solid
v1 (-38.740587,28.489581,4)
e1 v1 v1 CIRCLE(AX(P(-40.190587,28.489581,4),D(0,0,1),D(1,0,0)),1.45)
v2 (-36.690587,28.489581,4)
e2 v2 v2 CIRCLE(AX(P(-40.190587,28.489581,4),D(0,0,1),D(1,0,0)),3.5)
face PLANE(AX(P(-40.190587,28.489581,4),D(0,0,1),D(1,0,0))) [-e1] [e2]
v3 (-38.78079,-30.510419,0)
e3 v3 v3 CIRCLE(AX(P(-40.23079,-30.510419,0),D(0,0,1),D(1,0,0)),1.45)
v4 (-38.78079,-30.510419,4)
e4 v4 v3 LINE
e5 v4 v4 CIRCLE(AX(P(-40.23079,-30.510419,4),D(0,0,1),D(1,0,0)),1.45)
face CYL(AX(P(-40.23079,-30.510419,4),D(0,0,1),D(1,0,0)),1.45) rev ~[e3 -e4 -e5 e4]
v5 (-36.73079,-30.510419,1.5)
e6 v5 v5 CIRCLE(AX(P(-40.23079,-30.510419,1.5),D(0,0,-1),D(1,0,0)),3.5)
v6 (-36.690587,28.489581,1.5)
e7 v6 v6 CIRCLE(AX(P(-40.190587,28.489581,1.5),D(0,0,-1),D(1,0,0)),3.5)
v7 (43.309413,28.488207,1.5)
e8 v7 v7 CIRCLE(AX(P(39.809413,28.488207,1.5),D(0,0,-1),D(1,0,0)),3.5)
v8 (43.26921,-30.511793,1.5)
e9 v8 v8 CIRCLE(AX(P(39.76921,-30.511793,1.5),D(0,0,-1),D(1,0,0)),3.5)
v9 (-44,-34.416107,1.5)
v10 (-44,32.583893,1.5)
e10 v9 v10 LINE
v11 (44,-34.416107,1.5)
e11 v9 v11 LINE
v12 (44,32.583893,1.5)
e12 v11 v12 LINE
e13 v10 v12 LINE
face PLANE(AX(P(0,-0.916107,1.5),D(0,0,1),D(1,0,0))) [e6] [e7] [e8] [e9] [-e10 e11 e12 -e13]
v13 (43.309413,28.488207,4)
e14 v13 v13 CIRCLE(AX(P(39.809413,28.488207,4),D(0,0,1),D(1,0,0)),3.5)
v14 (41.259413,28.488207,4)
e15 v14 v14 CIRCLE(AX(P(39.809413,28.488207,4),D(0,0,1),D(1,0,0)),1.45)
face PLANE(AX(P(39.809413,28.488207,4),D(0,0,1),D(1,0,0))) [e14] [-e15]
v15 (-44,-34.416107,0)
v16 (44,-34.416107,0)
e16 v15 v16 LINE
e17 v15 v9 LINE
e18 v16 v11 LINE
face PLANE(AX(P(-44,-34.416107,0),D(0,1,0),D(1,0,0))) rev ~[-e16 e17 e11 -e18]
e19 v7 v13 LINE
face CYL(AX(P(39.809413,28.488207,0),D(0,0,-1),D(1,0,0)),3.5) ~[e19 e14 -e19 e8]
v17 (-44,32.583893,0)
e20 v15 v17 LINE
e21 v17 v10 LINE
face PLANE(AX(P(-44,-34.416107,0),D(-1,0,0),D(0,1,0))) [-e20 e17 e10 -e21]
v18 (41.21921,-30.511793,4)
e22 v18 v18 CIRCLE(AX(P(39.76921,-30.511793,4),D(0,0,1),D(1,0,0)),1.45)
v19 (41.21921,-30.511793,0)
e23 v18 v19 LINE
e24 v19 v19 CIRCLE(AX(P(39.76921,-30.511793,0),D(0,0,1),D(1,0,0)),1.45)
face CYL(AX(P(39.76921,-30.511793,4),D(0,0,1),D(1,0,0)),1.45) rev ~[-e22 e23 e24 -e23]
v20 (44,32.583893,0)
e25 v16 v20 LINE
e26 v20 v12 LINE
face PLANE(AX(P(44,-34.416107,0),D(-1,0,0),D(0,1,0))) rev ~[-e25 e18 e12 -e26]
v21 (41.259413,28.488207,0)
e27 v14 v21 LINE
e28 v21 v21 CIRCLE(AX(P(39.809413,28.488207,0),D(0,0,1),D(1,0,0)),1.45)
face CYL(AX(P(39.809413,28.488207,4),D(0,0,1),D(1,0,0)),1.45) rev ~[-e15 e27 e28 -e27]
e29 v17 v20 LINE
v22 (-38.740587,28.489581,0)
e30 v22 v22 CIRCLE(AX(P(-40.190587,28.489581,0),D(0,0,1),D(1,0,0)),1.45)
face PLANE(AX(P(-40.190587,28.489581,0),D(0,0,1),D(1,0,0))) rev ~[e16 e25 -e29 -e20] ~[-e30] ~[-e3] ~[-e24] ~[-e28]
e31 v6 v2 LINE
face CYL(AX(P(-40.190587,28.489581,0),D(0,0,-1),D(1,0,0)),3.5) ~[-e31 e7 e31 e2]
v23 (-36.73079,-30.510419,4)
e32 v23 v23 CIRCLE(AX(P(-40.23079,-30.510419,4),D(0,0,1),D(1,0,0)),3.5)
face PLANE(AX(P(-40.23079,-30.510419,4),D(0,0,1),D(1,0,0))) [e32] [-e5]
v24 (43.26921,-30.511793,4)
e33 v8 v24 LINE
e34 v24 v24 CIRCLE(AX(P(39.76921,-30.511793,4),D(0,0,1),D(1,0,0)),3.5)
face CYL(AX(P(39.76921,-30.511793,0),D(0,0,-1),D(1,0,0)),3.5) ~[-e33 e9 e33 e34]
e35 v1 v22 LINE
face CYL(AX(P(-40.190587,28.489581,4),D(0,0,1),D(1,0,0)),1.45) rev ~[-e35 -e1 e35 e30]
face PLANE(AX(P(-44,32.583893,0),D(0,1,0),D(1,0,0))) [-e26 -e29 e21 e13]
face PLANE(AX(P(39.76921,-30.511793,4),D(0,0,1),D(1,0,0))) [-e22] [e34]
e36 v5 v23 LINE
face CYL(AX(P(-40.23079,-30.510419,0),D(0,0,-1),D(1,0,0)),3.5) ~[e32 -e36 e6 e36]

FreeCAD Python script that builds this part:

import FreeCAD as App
import Part
import Sketcher


def add_polygon(sketch, points):
    """Adds a closed chain of lines whose ends are joined by coincident constraints."""
    first, n = sketch.GeometryCount, len(points)
    for a, b in zip(points, points[1:] + points[:1]):
        sketch.addGeometry(Part.LineSegment(App.Vector(*a, 0), App.Vector(*b, 0)), False)
    for i in range(n):
        sketch.addConstraint(Sketcher.Constraint("Coincident", first + i, 2, first + (i + 1) % n, 1))

doc = App.newDocument("Part")
body = doc.addObject("PartDesign::Body", "Body")

# Sketch on XY plane
sketch1 = body.newObject("Sketcher::SketchObject", "Sketch")
sketch1.AttachmentSupport = (doc.getObject("XY_Plane"), [""])
sketch1.MapMode = "FlatFace"
add_polygon(sketch1, [(-44, 33), (-44, -34), (44, -34), (44, 33)])  # lines 0-3
sketch1.addConstraint([
    Sketcher.Constraint("Vertical", 0),
    Sketcher.Constraint("Horizontal", 1),
    Sketcher.Constraint("Vertical", 2),
    Sketcher.Constraint("Horizontal", 3),
    Sketcher.Constraint("DistanceX", 1, 1, 1, 2, 88.0),
    Sketcher.Constraint("DistanceY", 0, 2, 0, 1, 67.0),
    Sketcher.Constraint("DistanceX", 0, 2, -1, 1, 44.0),
    Sketcher.Constraint("DistanceY", 0, 2, -1, 1, 34.416107),
])
pad1 = body.newObject("PartDesign::Pad", "Pad")
pad1.Profile = sketch1
pad1.Length = 1.5

# Sketch on XY plane
sketch2 = body.newObject("Sketcher::SketchObject", "Sketch001")
sketch2.AttachmentSupport = (doc.getObject("XY_Plane"), [""])
sketch2.MapMode = "FlatFace"
sketch2.addGeometry([
    Part.Circle(App.Vector(-40.2, 28.5, 0), App.Vector(0, 0, 1), 3.5),
    Part.Circle(App.Vector(39.8, 28.5, 0), App.Vector(0, 0, 1), 3.5),
    Part.Circle(App.Vector(-40.2, -30.5, 0), App.Vector(0, 0, 1), 3.5),
    Part.Circle(App.Vector(39.8, -30.5, 0), App.Vector(0, 0, 1), 3.5),
], False)
sketch2.addConstraint([
    Sketcher.Constraint("Equal", 0, 1),
    Sketcher.Constraint("Equal", 1, 2),
    Sketcher.Constraint("Equal", 2, 3),
    Sketcher.Constraint("Diameter", 0, 7.0),
    Sketcher.Constraint("DistanceX", 0, 3, 1, 3, 80.0),
    Sketcher.Constraint("DistanceY", 2, 3, 0, 3, 59.0),
    Sketcher.Constraint("DistanceY", 3, 3, 1, 3, 59.0),
    Sketcher.Constraint("DistanceX", 2, 3, 3, 3, 80.0),
    Sketcher.Constraint("DistanceY", -1, 1, 0, 3, 28.489581),
    Sketcher.Constraint("DistanceX", 2, 3, -1, 1, 40.23079),
    Sketcher.Constraint("DistanceX", 0, 3, -1, 1, 40.190587),
    Sketcher.Constraint("DistanceY", -1, 1, 1, 3, 28.488207),
])
pad2 = body.newObject("PartDesign::Pad", "Pad001")
pad2.Profile = sketch2
pad2.Length = 4

# Sketch on XY plane
sketch3 = body.newObject("Sketcher::SketchObject", "Sketch002")
sketch3.AttachmentSupport = (doc.getObject("XY_Plane"), [""])
sketch3.MapMode = "FlatFace"
sketch3.AttachmentOffset = App.Placement(App.Vector(0, 0, 4), App.Rotation())
sketch3.addGeometry([
    Part.Circle(App.Vector(-40.2, -30.5, 0), App.Vector(0, 0, 1), 1.4),
    Part.Circle(App.Vector(-40.2, 28.5, 0), App.Vector(0, 0, 1), 1.4),
    Part.Circle(App.Vector(39.8, -30.5, 0), App.Vector(0, 0, 1), 1.4),
    Part.Circle(App.Vector(39.8, 28.5, 0), App.Vector(0, 0, 1), 1.4),
], False)
sketch3.addConstraint([
    Sketcher.Constraint("Equal", 0, 1),
    Sketcher.Constraint("Equal", 1, 2),
    Sketcher.Constraint("Equal", 2, 3),
    Sketcher.Constraint("Diameter", 0, 2.9),
    Sketcher.Constraint("DistanceY", 0, 3, 1, 3, 59.0),
    Sketcher.Constraint("DistanceX", 0, 3, 2, 3, 80.0),
    Sketcher.Constraint("DistanceY", 2, 3, 3, 3, 59.0),
    Sketcher.Constraint("DistanceX", 1, 3, 3, 3, 80.0),
    Sketcher.Constraint("DistanceX", 0, 3, -1, 1, 40.23079),
    Sketcher.Constraint("DistanceY", 0, 3, -1, 1, 30.510419),
    Sketcher.Constraint("DistanceX", 1, 3, -1, 1, 40.190587),
    Sketcher.Constraint("DistanceY", 2, 3, -1, 1, 30.511793),
])
pocket1 = body.newObject("PartDesign::Pocket", "Pocket")
pocket1.Profile = sketch3
pocket1.Length = 5

doc.recompute()
